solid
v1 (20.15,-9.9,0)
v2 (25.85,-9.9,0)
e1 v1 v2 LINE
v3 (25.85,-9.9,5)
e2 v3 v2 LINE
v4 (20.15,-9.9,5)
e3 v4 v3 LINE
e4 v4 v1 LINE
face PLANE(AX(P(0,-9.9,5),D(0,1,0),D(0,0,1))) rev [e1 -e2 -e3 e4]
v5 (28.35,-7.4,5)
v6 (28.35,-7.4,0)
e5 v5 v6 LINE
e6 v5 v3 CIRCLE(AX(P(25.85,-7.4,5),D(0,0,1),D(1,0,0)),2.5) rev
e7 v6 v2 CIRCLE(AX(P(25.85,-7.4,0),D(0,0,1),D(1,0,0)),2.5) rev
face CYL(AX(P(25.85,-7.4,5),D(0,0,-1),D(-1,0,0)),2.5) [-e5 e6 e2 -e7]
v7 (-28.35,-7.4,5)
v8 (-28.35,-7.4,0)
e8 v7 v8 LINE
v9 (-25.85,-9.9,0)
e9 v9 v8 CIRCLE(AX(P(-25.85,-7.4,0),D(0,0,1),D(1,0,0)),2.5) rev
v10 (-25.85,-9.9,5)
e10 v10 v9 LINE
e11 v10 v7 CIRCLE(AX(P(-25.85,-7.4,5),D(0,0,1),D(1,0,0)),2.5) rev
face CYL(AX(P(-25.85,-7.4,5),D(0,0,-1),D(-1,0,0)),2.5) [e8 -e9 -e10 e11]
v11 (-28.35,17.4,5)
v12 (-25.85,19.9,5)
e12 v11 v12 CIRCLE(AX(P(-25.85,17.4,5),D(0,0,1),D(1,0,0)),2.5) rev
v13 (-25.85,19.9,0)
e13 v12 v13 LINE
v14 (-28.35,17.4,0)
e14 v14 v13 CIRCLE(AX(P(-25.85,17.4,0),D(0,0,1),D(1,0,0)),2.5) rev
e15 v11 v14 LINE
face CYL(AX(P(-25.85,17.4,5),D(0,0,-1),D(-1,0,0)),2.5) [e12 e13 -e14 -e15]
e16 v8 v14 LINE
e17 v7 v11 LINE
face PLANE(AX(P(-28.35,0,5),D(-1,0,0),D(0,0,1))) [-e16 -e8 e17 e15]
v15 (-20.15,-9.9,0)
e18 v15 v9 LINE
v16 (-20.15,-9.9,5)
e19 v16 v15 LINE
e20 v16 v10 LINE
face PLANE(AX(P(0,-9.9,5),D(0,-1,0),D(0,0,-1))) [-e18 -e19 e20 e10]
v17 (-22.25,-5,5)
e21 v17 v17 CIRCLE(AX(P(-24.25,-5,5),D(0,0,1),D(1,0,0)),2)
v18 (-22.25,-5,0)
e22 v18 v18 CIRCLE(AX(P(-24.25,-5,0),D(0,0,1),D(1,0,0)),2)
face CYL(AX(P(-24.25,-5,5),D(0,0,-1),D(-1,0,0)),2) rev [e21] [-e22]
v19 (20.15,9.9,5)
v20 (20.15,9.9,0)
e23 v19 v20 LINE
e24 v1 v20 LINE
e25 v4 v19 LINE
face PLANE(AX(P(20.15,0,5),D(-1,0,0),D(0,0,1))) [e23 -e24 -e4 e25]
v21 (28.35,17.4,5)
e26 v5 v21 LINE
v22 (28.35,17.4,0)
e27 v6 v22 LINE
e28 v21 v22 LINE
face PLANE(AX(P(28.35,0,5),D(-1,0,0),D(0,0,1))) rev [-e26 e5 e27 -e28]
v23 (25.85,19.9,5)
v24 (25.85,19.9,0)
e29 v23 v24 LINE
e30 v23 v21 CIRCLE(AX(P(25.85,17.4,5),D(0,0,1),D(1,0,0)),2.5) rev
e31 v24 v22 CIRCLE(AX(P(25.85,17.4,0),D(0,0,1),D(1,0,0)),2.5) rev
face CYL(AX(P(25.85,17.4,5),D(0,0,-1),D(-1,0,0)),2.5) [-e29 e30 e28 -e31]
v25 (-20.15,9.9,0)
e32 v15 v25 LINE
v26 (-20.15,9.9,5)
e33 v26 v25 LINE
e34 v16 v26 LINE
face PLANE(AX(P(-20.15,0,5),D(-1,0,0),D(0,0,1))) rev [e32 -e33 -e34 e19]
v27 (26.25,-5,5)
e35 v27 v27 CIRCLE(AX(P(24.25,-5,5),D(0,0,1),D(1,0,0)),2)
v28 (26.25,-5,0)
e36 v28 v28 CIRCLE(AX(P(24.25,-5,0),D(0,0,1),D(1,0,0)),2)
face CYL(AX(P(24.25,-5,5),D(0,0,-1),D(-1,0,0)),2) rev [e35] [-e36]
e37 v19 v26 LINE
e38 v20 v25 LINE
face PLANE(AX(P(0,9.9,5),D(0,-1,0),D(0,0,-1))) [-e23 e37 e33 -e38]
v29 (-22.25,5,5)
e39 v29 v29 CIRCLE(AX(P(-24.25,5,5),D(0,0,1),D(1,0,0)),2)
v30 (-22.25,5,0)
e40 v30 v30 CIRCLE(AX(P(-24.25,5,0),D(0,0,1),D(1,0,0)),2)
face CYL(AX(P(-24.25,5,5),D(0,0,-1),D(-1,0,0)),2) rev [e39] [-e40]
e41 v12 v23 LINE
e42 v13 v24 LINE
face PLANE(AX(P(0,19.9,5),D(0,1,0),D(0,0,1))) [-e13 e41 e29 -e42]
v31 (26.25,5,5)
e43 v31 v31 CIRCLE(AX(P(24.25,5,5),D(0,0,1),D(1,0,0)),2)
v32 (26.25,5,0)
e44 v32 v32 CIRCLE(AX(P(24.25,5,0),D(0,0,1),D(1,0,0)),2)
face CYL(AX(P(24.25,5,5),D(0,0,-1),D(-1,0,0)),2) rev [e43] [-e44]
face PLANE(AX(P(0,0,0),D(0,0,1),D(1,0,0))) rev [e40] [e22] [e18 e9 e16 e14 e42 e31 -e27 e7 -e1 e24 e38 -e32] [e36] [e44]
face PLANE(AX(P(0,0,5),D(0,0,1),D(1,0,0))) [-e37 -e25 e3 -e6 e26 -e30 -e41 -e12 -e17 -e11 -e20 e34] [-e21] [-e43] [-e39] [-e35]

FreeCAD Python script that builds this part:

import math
import FreeCAD as App
import Part
import Sketcher
Q = App.Units.Quantity

doc = App.newDocument("Part")
params = doc.addObject("Spreadsheet::Sheet", "Params")
for row, (alias, value) in enumerate([
    ("sketch1_diameter", "4 mm"),
    ("sketch1_radius", "2.5 mm"),
    ("sketch1_width", "5.7 mm"),
    ("sketch1_width2", "40.3 mm"),
    ("sketch1_height", "19.8 mm"),
    ("pad1_length", "5 mm"),
], start=1):
    params.set(f"A{row}", alias)
    params.set(f"B{row}", "=" + value)
    params.setAlias(f"B{row}", alias)

body = doc.addObject("PartDesign::Body", "Body")

# Sketch on XY plane
sketch1 = doc.addObject("Sketcher::SketchObject", "Sketch")
body.addObject(sketch1)
sketch1.AttachmentSupport = (doc.XY_Plane, [""])
sketch1.MapMode = "FlatFace"
sketch1.addGeometry(Part.ArcOfCircle(Part.Circle(App.Vector(-25.9, -7.4, 0), App.Vector(0, 0, 1), 2.5), math.radians(180), math.radians(270)), False)
sketch1.addGeometry(Part.LineSegment(App.Vector(-25.9, -9.9, 0), App.Vector(-20.1, -9.9, 0)), False)
sketch1.addGeometry(Part.LineSegment(App.Vector(-20.1, -9.9, 0), App.Vector(-20.1, 9.9, 0)), False)
sketch1.addGeometry(Part.LineSegment(App.Vector(-20.1, 9.9, 0), App.Vector(20.1, 9.9, 0)), False)
sketch1.addGeometry(Part.LineSegment(App.Vector(20.1, 9.9, 0), App.Vector(20.1, -9.9, 0)), False)
sketch1.addGeometry(Part.LineSegment(App.Vector(20.1, -9.9, 0), App.Vector(25.9, -9.9, 0)), False)
sketch1.addGeometry(Part.ArcOfCircle(Part.Circle(App.Vector(25.9, -7.4, 0), App.Vector(0, 0, 1), 2.5), math.radians(-90), math.radians(0)), False)
sketch1.addGeometry(Part.LineSegment(App.Vector(28.4, -7.4, 0), App.Vector(28.4, 17.4, 0)), False)
sketch1.addGeometry(Part.ArcOfCircle(Part.Circle(App.Vector(25.9, 17.4, 0), App.Vector(0, 0, 1), 2.5), math.radians(0), math.radians(90)), False)
sketch1.addGeometry(Part.LineSegment(App.Vector(25.9, 19.9, 0), App.Vector(-25.9, 19.9, 0)), False)
sketch1.addGeometry(Part.ArcOfCircle(Part.Circle(App.Vector(-25.9, 17.4, 0), App.Vector(0, 0, 1), 2.5), math.radians(90), math.radians(180)), False)
sketch1.addGeometry(Part.LineSegment(App.Vector(-28.4, 17.4, 0), App.Vector(-28.4, -7.4, 0)), False)
sketch1.addGeometry(Part.Circle(App.Vector(24.2, -5, 0), App.Vector(0, 0, 1), 2), False)
sketch1.addGeometry(Part.Circle(App.Vector(-24.2, -5, 0), App.Vector(0, 0, 1), 2), False)
sketch1.addGeometry(Part.Circle(App.Vector(24.2, 5, 0), App.Vector(0, 0, 1), 2), False)
sketch1.addGeometry(Part.Circle(App.Vector(-24.2, 5, 0), App.Vector(0, 0, 1), 2), False)
sketch1.addConstraint(Sketcher.Constraint("Tangent", 0, 2, 1, 1))
sketch1.addConstraint(Sketcher.Constraint("Coincident", 1, 2, 2, 1))
sketch1.addConstraint(Sketcher.Constraint("Coincident", 2, 2, 3, 1))
sketch1.addConstraint(Sketcher.Constraint("Coincident", 3, 2, 4, 1))
sketch1.addConstraint(Sketcher.Constraint("Coincident", 4, 2, 5, 1))
sketch1.addConstraint(Sketcher.Constraint("Tangent", 5, 2, 6, 1))
sketch1.addConstraint(Sketcher.Constraint("Tangent", 6, 2, 7, 1))
sketch1.addConstraint(Sketcher.Constraint("Tangent", 7, 2, 8, 1))
sketch1.addConstraint(Sketcher.Constraint("Tangent", 8, 2, 9, 1))
sketch1.addConstraint(Sketcher.Constraint("Tangent", 9, 2, 10, 1))
sketch1.addConstraint(Sketcher.Constraint("Tangent", 10, 2, 11, 1))
sketch1.addConstraint(Sketcher.Constraint("Tangent", 11, 2, 0, 1))
sketch1.addConstraint(Sketcher.Constraint("Horizontal", 1))
sketch1.addConstraint(Sketcher.Constraint("Vertical", 2))
sketch1.addConstraint(Sketcher.Constraint("Horizontal", 3))
sketch1.addConstraint(Sketcher.Constraint("Vertical", 4))
sketch1.addConstraint(Sketcher.Constraint("Horizontal", 5))
sketch1.addConstraint(Sketcher.Constraint("Vertical", 7))
sketch1.addConstraint(Sketcher.Constraint("Horizontal", 9))
sketch1.addConstraint(Sketcher.Constraint("Vertical", 11))
sketch1.addConstraint(Sketcher.Constraint("Equal", 0, 6))
sketch1.addConstraint(Sketcher.Constraint("Equal", 6, 8))
sketch1.addConstraint(Sketcher.Constraint("Equal", 8, 10))
sketch1.addConstraint(Sketcher.Constraint("Equal", 12, 13))
sketch1.addConstraint(Sketcher.Constraint("Equal", 13, 14))
sketch1.addConstraint(Sketcher.Constraint("Equal", 14, 15))
sketch1.addConstraint(Sketcher.Constraint("Symmetric", 13, 3, 14, 3, -1, 1))
sketch1.addConstraint(Sketcher.Constraint("Symmetric", 12, 3, 15, 3, -1, 1))
sketch1.addConstraint(Sketcher.Constraint("Symmetric", 1, 2, 3, 2, -1, 1))
sketch1.addConstraint(Sketcher.Constraint("Symmetric", 0, 3, 6, 3, -2))
sketch1.addConstraint(Sketcher.Constraint("Symmetric", 12, 3, 13, 3, -2))
sketch1.addConstraint(Sketcher.Constraint("Diameter", 12, Q("4 mm")))
sketch1.addConstraint(Sketcher.Constraint("Radius", 0, Q("2.5 mm")))
sketch1.addConstraint(Sketcher.Constraint("DistanceX", 1, 1, 1, 2, Q("5.7 mm")))
sketch1.addConstraint(Sketcher.Constraint("DistanceX", 3, 1, 3, 2, Q("40.3 mm")))
sketch1.addConstraint(Sketcher.Constraint("DistanceY", 2, 1, 2, 2, Q("19.8 mm")))
sketch1.addConstraint(Sketcher.Constraint("DistanceY", 7, 1, 7, 2, Q("24.8 mm")))
sketch1.addConstraint(Sketcher.Constraint("DistanceY", 12, 3, -1, 1, Q("5 mm")))
sketch1.addConstraint(Sketcher.Constraint("DistanceX", 12, 3, 6, 3, Q("1.6 mm")))
sketch1.setExpression("Constraints[31]", "Params.sketch1_diameter")
sketch1.setExpression("Constraints[32]", "Params.sketch1_radius")
sketch1.setExpression("Constraints[33]", "Params.sketch1_width")
sketch1.setExpression("Constraints[34]", "Params.sketch1_width2")
sketch1.setExpression("Constraints[35]", "Params.sketch1_height")
pad1 = doc.addObject("PartDesign::Pad", "Pad")
body.addObject(pad1)
pad1.Profile = sketch1
pad1.setExpression("Length", "Params.pad1_length")

doc.recompute()
